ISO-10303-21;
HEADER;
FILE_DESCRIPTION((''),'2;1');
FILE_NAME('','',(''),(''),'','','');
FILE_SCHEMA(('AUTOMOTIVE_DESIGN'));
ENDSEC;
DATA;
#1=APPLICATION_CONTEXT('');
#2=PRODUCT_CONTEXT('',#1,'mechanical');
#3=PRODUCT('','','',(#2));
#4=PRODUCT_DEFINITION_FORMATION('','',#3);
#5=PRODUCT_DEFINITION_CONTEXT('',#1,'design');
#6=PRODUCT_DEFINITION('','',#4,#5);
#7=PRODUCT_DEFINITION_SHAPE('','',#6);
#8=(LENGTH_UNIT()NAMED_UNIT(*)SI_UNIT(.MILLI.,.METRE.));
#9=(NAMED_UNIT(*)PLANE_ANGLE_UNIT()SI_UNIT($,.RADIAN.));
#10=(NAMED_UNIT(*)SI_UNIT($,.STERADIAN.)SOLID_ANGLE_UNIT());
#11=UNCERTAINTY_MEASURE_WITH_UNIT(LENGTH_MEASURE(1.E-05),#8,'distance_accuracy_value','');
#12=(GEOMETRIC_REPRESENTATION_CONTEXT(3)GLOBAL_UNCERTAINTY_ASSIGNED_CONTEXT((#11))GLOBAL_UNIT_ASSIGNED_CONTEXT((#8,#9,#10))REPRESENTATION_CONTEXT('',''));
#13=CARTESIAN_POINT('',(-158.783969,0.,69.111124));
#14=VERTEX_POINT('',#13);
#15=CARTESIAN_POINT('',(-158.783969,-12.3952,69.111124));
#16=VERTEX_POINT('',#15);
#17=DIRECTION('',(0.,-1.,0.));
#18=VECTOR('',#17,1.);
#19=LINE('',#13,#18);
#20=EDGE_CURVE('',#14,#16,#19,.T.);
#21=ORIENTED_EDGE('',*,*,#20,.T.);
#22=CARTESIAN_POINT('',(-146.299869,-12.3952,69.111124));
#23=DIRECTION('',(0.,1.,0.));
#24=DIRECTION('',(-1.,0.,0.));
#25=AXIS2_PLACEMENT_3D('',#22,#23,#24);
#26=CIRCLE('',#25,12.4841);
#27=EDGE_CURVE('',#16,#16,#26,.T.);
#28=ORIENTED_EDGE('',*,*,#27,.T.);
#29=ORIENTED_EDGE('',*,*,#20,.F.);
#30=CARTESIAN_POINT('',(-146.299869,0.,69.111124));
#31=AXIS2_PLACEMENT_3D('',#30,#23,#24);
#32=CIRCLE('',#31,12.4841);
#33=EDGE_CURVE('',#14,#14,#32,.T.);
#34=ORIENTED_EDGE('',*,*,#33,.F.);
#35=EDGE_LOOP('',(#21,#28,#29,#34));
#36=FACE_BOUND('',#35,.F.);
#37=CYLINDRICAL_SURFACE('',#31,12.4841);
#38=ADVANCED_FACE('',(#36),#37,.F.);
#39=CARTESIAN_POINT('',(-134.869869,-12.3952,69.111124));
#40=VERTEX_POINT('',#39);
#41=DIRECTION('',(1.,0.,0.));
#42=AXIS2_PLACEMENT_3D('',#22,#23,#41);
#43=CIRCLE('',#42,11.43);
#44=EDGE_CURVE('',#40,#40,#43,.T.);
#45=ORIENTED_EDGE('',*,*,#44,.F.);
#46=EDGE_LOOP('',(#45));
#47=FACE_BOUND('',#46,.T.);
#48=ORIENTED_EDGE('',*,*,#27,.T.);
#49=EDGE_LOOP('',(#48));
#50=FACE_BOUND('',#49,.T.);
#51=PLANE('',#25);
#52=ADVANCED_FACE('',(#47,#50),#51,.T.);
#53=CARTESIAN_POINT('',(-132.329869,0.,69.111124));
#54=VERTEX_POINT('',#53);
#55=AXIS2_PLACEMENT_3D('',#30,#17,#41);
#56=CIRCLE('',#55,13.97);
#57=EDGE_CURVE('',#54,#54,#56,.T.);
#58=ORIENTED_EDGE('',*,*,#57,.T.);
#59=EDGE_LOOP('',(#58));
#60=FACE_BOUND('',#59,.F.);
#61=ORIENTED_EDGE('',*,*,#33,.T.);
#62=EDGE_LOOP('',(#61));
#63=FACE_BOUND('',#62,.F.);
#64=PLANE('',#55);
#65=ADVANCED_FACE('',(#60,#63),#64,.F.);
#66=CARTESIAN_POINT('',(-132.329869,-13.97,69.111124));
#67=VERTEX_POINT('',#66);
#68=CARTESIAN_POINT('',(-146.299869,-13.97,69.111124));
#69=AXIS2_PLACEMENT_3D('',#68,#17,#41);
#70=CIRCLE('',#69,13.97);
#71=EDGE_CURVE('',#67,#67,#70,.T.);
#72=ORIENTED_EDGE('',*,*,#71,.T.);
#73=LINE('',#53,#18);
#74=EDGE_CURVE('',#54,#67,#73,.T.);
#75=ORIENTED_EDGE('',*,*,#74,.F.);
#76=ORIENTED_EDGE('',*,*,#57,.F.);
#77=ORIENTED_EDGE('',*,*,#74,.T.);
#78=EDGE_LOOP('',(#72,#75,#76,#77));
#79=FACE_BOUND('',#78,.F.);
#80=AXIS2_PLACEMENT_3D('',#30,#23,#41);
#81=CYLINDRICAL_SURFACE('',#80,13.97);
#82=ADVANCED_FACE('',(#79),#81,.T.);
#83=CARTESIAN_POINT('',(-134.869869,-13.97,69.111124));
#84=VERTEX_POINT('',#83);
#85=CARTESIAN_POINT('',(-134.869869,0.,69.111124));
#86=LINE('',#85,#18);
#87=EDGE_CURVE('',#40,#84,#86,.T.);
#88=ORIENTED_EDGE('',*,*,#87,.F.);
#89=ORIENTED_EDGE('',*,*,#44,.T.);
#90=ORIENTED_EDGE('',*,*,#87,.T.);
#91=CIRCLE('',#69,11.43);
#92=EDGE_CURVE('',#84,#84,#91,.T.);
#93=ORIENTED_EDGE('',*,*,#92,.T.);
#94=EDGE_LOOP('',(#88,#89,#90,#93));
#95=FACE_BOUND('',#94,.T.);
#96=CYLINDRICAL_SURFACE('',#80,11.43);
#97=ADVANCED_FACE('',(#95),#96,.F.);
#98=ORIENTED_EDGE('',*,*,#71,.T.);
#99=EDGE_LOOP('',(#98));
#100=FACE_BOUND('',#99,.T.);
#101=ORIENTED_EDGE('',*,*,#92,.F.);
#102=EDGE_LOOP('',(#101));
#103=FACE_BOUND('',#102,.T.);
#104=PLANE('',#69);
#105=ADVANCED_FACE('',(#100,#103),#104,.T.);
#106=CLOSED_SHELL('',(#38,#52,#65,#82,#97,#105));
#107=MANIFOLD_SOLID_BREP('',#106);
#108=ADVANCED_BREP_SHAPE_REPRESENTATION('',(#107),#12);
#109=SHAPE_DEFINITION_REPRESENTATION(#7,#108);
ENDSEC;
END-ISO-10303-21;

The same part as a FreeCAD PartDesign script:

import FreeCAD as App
import Part
import Sketcher

V = App.Vector
Q = App.Units.Quantity

doc = App.newDocument("Part")
body = doc.addObject("PartDesign::Body", "Body")

sketch1 = body.newObject("Sketcher::SketchObject", "Sketch")
sketch1.AttachmentSupport = (doc.getObject("XZ_Plane"), [""])
sketch1.MapMode = "FlatFace"
sketch1.addGeometry([
    Part.Circle(V(-146.299869, 69.111124, 0), V(0, 0, 1), 13.97),
    Part.Circle(V(-146.299869, 69.111124, 0), V(0, 0, 1), 11.43),
], False)
sketch1.addConstraint([
    Sketcher.Constraint("Coincident", 1, 3, 0, 3),
    Sketcher.Constraint("Diameter", 0, Q("1.1 in")),
    Sketcher.Constraint("Diameter", 1, Q("0.9 in")),
    Sketcher.Constraint("DistanceX", 0, 3, -1, 1, Q("146.299869 mm")),
    Sketcher.Constraint("DistanceY", -1, 1, 0, 3, Q("69.111124 mm")),
])
pad1 = body.newObject("PartDesign::Pad", "Pad")
pad1.Profile = sketch1
pad1.Length = Q("0.55 in")

sketch2 = body.newObject("Sketcher::SketchObject", "Sketch001")
sketch2.AttachmentSupport = (doc.getObject("XZ_Plane"), [""])
sketch2.MapMode = "FlatFace"
sketch2.addGeometry(Part.Circle(V(-146.299869, 69.111124, 0), V(0, 0, 1), 12.4841), False)
sketch2.addConstraint([
    Sketcher.Constraint("Diameter", 0, Q("0.983 in")),
    Sketcher.Constraint("DistanceX", 0, 3, -1, 1, Q("146.299869 mm")),
    Sketcher.Constraint("DistanceY", -1, 1, 0, 3, Q("69.111124 mm")),
])
pocket1 = body.newObject("PartDesign::Pocket", "Pocket")
pocket1.Profile = sketch2
pocket1.Length = Q("0.488 in")
pocket1.Reversed = True

doc.recompute()
